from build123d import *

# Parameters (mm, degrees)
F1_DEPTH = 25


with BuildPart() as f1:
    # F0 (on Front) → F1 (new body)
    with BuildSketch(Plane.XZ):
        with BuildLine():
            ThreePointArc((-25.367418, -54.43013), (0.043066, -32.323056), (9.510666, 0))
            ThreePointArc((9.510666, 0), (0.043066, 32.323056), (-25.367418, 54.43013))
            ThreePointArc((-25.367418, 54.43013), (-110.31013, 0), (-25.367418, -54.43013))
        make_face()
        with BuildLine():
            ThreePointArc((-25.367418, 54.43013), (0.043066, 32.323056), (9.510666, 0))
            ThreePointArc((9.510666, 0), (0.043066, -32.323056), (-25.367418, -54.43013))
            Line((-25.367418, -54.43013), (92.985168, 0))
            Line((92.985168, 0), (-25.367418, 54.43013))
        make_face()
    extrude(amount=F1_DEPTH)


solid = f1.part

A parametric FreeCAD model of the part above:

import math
import FreeCAD as App
import Part
import Sketcher

doc = App.newDocument("Part")
body = doc.addObject("PartDesign::Body", "Body")

sketch1 = doc.addObject("Sketcher::SketchObject", "Sketch")
body.addObject(sketch1)
sketch1.AttachmentSupport = (doc.XZ_Plane, [""])
sketch1.MapMode = "FlatFace"
sketch1.addGeometry([
    Part.ArcOfCircle(Part.Circle(App.Vector(-50.399732, 0, 0), App.Vector(0, 0, 1), 59.910398), math.radians(65.302388), math.radians(294.697612)),
    Part.LineSegment(App.Vector(-25.367418, -54.43013, 0), App.Vector(92.985168, 0, 0)),
    Part.LineSegment(App.Vector(92.985168, 0, 0), App.Vector(-25.367418, 54.43013, 0)),
], False)
sketch1.addConstraint([
    Sketcher.Constraint("Tangent", 0, 2, 1, 1),
    Sketcher.Constraint("Coincident", 1, 2, 2, 1),
    Sketcher.Constraint("Tangent", 2, 2, 0, 1),
    Sketcher.Constraint("Symmetric", 0, 2, 2, 2, -1),
    Sketcher.Constraint("Radius", 0, 59.910398),
    Sketcher.Constraint("DistanceX", 0, 3, 1, 2, 143.3849),
    Sketcher.Constraint("DistanceX", 0, 3, -1, 1, 50.399732),
])
pad1 = doc.addObject("PartDesign::Pad", "Pad")
body.addObject(pad1)
pad1.Profile = sketch1
pad1.Length = 25

doc.recompute()
